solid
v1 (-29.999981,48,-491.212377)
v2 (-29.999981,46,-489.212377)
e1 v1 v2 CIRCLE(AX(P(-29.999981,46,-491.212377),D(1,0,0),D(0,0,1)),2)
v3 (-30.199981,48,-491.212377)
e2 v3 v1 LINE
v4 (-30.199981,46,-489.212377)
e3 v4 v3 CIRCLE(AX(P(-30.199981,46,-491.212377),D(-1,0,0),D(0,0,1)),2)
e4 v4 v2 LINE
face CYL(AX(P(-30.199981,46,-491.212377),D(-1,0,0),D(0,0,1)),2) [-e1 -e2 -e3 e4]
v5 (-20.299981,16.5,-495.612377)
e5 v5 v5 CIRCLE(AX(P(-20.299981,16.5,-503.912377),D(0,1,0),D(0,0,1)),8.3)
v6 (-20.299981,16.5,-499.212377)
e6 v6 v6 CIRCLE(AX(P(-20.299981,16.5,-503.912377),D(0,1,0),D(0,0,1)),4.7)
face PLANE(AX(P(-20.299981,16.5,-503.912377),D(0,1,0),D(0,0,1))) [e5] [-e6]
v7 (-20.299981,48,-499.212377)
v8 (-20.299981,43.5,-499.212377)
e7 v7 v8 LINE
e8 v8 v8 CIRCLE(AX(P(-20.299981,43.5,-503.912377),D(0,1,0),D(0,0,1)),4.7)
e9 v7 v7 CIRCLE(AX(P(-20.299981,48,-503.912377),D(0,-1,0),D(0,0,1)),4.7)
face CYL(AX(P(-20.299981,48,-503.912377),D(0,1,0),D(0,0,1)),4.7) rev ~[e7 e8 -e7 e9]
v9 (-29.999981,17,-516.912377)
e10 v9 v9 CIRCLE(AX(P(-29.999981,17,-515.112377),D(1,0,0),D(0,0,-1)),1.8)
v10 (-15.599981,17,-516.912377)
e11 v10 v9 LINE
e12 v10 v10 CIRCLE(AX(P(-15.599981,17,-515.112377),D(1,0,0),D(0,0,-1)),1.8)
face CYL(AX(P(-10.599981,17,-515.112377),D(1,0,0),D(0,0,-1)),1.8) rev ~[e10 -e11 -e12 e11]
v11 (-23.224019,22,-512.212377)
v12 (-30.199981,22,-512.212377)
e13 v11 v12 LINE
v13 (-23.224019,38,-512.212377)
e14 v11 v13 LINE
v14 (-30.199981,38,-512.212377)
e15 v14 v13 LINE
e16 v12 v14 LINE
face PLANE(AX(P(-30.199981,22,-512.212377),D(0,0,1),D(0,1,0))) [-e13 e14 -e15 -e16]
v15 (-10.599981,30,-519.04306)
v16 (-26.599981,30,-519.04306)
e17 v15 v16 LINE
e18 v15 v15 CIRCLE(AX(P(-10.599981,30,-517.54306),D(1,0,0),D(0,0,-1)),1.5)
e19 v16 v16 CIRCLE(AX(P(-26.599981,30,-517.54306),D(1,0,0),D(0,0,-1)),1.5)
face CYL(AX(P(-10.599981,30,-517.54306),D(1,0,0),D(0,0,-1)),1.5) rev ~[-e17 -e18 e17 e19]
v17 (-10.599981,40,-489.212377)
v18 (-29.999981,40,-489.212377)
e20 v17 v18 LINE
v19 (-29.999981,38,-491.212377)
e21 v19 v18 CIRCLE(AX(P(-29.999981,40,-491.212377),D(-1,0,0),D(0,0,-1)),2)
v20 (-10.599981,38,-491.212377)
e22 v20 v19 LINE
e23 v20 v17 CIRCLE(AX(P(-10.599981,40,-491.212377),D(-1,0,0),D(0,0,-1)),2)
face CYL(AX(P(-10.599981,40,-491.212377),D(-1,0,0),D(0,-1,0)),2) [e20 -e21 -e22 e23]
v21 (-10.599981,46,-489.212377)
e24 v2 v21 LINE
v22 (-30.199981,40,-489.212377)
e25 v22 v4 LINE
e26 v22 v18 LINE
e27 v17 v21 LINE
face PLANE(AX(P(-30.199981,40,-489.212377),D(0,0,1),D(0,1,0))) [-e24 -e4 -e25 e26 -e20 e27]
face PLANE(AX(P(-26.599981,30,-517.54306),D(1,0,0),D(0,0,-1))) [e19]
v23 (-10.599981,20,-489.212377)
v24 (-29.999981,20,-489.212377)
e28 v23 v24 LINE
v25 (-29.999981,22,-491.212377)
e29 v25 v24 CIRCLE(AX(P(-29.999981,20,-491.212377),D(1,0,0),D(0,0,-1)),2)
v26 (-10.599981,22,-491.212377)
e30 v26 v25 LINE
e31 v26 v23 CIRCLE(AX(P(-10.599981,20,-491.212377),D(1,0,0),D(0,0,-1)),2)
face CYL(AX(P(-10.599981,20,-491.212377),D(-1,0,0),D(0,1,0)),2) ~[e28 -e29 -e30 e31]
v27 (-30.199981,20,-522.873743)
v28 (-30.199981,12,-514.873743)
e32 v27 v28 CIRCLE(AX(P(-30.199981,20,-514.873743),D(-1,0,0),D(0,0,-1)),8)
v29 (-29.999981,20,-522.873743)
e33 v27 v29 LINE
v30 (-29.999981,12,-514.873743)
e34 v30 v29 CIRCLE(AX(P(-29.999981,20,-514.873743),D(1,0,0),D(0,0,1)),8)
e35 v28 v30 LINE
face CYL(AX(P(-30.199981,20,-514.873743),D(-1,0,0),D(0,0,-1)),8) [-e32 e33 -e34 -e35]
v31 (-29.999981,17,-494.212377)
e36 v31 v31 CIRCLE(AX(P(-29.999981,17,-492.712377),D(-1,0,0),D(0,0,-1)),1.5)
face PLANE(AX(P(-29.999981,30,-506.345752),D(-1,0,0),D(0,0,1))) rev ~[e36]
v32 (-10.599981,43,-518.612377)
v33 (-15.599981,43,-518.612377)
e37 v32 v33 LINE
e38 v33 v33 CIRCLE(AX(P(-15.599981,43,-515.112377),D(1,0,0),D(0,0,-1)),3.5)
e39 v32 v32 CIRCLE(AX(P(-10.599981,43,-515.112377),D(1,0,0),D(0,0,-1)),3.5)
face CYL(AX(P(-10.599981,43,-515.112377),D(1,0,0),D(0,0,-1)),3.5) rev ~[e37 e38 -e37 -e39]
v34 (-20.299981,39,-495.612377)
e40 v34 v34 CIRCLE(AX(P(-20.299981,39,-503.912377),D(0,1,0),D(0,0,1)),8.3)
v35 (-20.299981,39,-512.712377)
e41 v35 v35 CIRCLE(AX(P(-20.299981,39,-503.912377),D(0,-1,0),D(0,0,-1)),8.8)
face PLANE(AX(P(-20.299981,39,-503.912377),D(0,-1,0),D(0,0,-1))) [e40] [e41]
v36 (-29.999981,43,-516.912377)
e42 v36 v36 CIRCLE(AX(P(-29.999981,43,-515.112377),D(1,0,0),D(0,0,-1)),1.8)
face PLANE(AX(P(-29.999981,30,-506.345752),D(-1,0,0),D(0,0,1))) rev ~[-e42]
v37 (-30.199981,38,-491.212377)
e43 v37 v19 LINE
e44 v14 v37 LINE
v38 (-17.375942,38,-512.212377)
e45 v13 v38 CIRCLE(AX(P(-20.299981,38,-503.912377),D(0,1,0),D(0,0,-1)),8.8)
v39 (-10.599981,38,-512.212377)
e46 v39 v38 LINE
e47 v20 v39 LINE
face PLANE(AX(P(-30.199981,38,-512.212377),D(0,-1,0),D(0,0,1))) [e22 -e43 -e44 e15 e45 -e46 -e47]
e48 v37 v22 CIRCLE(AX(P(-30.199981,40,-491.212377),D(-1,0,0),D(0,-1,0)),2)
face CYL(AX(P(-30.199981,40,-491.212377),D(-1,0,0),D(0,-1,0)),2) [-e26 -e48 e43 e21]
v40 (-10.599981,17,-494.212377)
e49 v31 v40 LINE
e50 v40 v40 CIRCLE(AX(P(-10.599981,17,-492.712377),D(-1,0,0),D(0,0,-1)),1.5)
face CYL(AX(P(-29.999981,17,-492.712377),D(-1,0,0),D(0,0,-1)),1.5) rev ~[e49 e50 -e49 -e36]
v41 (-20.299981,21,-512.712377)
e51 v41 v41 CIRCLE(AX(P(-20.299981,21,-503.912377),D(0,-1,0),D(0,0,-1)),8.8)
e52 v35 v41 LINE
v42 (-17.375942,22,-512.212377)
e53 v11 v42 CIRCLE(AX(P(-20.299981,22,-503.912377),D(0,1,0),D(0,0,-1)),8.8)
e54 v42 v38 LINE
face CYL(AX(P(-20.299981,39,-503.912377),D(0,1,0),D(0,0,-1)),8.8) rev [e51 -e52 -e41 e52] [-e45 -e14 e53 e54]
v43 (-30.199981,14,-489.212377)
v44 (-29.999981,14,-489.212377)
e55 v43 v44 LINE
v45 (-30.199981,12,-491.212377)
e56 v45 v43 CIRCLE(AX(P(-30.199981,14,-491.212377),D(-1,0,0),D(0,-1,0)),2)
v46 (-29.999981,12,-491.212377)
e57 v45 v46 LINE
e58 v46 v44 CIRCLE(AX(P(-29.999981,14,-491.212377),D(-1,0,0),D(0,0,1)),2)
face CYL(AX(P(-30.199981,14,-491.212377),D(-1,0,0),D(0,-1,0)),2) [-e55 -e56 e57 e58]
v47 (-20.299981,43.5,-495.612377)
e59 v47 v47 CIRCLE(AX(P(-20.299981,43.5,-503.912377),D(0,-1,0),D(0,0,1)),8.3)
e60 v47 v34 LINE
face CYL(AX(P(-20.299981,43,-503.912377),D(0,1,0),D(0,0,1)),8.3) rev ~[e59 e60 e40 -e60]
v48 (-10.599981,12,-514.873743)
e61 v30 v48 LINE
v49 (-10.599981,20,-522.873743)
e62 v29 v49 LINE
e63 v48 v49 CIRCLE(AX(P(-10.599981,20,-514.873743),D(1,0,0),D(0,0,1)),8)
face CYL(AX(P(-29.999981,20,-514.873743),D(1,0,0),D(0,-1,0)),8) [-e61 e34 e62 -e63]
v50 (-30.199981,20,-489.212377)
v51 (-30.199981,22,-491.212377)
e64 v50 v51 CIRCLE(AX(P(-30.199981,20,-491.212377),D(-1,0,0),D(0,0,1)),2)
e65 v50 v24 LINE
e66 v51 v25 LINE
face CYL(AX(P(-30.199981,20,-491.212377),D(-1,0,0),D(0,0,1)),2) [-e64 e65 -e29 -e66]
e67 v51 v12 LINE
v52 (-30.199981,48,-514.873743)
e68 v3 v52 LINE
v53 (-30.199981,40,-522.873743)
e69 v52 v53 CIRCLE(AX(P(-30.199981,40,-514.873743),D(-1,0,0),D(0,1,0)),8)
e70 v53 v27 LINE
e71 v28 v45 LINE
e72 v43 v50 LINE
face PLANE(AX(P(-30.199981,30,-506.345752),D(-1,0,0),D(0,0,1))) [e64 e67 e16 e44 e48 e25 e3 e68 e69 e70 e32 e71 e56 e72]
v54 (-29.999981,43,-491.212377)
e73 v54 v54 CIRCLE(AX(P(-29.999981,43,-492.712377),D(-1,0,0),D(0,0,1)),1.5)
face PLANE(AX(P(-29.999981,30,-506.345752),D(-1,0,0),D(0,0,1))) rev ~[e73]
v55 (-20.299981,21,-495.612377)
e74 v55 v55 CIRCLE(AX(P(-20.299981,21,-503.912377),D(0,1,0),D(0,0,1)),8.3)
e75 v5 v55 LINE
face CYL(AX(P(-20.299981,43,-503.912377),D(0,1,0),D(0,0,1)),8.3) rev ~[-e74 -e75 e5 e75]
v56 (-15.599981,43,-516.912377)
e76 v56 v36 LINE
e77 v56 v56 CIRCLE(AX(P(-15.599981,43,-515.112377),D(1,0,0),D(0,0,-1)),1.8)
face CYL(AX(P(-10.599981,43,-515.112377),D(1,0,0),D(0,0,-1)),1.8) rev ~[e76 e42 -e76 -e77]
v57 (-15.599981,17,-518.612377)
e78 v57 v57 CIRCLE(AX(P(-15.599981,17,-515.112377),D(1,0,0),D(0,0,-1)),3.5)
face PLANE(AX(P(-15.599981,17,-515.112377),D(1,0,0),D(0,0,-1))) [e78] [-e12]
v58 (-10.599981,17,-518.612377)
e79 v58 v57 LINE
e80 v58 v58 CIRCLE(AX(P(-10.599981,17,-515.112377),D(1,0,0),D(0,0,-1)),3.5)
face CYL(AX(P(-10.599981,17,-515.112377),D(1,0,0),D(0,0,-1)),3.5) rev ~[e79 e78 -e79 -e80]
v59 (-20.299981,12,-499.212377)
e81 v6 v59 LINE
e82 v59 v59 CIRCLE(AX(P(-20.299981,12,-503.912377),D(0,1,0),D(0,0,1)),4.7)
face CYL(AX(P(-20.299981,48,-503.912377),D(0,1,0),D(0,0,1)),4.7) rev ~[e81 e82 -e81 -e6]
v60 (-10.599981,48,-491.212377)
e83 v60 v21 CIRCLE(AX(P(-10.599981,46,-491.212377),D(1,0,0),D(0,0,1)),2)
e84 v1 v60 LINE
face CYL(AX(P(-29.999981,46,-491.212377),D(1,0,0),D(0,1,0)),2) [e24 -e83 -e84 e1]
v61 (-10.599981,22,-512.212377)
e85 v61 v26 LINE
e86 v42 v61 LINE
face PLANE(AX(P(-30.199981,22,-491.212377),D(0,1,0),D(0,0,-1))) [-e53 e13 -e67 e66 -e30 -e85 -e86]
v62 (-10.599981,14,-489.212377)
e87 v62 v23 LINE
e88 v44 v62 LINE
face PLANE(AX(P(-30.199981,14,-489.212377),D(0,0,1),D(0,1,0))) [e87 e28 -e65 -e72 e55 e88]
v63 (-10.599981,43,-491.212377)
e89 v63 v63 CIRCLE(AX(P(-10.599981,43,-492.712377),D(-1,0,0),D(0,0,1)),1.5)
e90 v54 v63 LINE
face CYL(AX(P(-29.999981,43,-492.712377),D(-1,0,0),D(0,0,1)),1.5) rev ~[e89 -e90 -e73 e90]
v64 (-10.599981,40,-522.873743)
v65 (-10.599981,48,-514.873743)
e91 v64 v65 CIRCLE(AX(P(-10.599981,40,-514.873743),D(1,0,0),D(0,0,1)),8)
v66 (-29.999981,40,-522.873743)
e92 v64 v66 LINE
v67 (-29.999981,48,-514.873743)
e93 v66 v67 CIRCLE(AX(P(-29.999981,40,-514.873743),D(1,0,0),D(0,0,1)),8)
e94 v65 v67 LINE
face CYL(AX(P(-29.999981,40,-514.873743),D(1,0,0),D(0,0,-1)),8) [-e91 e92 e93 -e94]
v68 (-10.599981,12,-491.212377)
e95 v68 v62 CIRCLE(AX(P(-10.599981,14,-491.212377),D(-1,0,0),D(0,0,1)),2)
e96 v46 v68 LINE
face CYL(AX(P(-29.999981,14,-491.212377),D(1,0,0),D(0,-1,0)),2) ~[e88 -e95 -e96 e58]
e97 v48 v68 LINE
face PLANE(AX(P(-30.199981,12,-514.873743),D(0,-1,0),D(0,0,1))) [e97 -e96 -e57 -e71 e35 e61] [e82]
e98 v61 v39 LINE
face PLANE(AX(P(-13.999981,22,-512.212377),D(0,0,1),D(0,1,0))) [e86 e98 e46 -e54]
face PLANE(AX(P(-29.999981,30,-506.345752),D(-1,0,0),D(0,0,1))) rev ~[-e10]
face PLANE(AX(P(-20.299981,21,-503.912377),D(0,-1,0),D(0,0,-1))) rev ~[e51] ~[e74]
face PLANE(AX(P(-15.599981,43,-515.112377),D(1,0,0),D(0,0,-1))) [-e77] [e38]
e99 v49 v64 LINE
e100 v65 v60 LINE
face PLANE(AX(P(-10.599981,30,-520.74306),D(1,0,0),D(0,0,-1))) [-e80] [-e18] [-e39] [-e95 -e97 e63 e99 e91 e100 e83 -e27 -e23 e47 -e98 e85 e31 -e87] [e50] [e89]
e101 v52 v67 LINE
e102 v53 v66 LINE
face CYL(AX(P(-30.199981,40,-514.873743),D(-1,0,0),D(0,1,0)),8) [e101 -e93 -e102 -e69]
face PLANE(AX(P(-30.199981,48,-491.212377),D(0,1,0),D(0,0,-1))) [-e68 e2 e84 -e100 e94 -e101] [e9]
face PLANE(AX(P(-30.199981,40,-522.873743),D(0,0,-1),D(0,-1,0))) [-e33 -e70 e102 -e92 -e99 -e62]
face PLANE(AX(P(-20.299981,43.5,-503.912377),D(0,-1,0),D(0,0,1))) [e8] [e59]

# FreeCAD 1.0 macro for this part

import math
import FreeCAD as App
import Part
import Sketcher
from FreeCAD import Vector


def edges_at(feature, points):
    """Names of the edges that pass closest to the given points."""
    edges = feature.Shape.Edges
    near = lambda p: min(range(len(edges)), key=lambda i: edges[i].distToShape(Part.Vertex(*p))[0])
    return sorted({f"Edge{near(p) + 1}" for p in points})

doc = App.newDocument("Part")
body = doc.addObject("PartDesign::Body", "Body")

# Sketch on XZ plane
sketch1 = doc.addObject("Sketcher::SketchObject", "Sketch")
body.addObject(sketch1)
sketch1.AttachmentSupport = (doc.XZ_Plane, [""])
sketch1.MapMode = "FlatFace"
sketch1.addGeometry([
    Part.LineSegment(Vector(-25, -522.9, 0), Vector(-30, -522.9, 0)),  # 0
    Part.LineSegment(Vector(-30, -522.9, 0), Vector(-30, -494.2, 0)),  # 1
    Part.LineSegment(Vector(-30, -494.2, 0), Vector(-20.3, -494.2, 0)),  # 2
    Part.ArcOfCircle(Part.Circle(Vector(-20.3, -503.9, 0), Vector(0, 0, 1), 9.7), math.radians(-90), math.radians(90)),  # 3
    Part.LineSegment(Vector(-20.3, -513.6, 0), Vector(-25, -513.6, 0)),  # 4
    Part.LineSegment(Vector(-25, -513.6, 0), Vector(-25, -522.9, 0)),  # 5
    Part.Circle(Vector(-20.3, -503.9, 0), Vector(0, 0, 1), 3),  # 6
], False)
sketch1.addConstraint([
    Sketcher.Constraint("Coincident", 0, 2, 1, 1),
    Sketcher.Constraint("Coincident", 1, 2, 2, 1),
    Sketcher.Constraint("Tangent", 2, 2, 3, 2),
    Sketcher.Constraint("Tangent", 3, 1, 4, 1),
    Sketcher.Constraint("Coincident", 4, 2, 5, 1),
    Sketcher.Constraint("Coincident", 5, 2, 0, 1),
    Sketcher.Constraint("Horizontal", 0),
    Sketcher.Constraint("Vertical", 1),
    Sketcher.Constraint("Horizontal", 2),
    Sketcher.Constraint("Horizontal", 4),
    Sketcher.Constraint("Vertical", 5),
    Sketcher.Constraint("Coincident", 6, 3, 3, 3),
    Sketcher.Constraint("Diameter", 6, 6.0),
    Sketcher.Constraint("Radius", 3, 9.7),
    Sketcher.Constraint("DistanceX", 0, 2, 0, 1, 5.0),
    Sketcher.Constraint("DistanceX", 2, 1, 2, 2, 9.7),
    Sketcher.Constraint("DistanceY", 1, 1, 1, 2, 28.661365),
    Sketcher.Constraint("DistanceX", 3, 3, -1, 1, 20.299981),
    Sketcher.Constraint("DistanceY", 3, 3, -1, 1, 503.912377),
])
pad1 = doc.addObject("PartDesign::Pad", "Pad")
body.addObject(pad1)
pad1.Profile = sketch1
pad1.Length = 60
pad1.Reversed = True

# Sketch on XZ plane
sketch2 = doc.addObject("Sketcher::SketchObject", "Sketch001")
body.addObject(sketch2)
sketch2.AttachmentSupport = (doc.XZ_Plane, [""])
sketch2.MapMode = "FlatFace"
sketch2.AttachmentOffset = App.Placement(Vector(0, 0, -43), App.Rotation())
sketch2.addGeometry(Part.Circle(Vector(-20, -504, 0), Vector(0, 0, 1), 8), False)
sketch2.addConstraint([
    Sketcher.Constraint("Diameter", 0, 16.6),
    Sketcher.Constraint("DistanceX", 0, 3, -1, 1, 20.299981),
    Sketcher.Constraint("DistanceY", 0, 3, -1, 1, 503.912377),
])
pocket1 = doc.addObject("PartDesign::Pocket", "Pocket")
body.addObject(pocket1)
pocket1.Profile = sketch2
pocket1.Length = 26
pocket1.Reversed = True

# Sketch on XZ plane
sketch3 = doc.addObject("Sketcher::SketchObject", "Sketch002")
body.addObject(sketch3)
sketch3.AttachmentSupport = (doc.XZ_Plane, [""])
sketch3.MapMode = "FlatFace"
sketch3.AttachmentOffset = App.Placement(Vector(0, 0, -38), App.Rotation())
sketch3.addGeometry([
    Part.LineSegment(Vector(-20, -512, 0), Vector(-30, -512, 0)),
    Part.LineSegment(Vector(-30, -512, 0), Vector(-30, -496, 0)),
    Part.LineSegment(Vector(-30, -496, 0), Vector(-20, -496, 0)),
    Part.ArcOfCircle(Part.Circle(Vector(-20, -504, 0), Vector(0, 0, 1), 8), math.radians(90), math.radians(270)),
], False)
sketch3.addConstraint([
    Sketcher.Constraint("Coincident", 0, 2, 1, 1),
    Sketcher.Constraint("Coincident", 1, 2, 2, 1),
    Sketcher.Constraint("Tangent", 2, 2, 3, 1),
    Sketcher.Constraint("Tangent", 3, 2, 0, 1),
    Sketcher.Constraint("Horizontal", 0),
    Sketcher.Constraint("Vertical", 1),
    Sketcher.Constraint("Horizontal", 2),
    Sketcher.Constraint("Radius", 3, 8.3),
    Sketcher.Constraint("DistanceX", 0, 2, 0, 1, 9.7),
    Sketcher.Constraint("DistanceX", 3, 3, -1, 1, 20.299981),
    Sketcher.Constraint("DistanceY", 3, 3, -1, 1, 503.912377),
])
pocket2 = doc.addObject("PartDesign::Pocket", "Pocket001")
body.addObject(pocket2)
pocket2.Profile = sketch3
pocket2.Length = 16
pocket2.Reversed = True

# Sketch on XZ plane
sketch4 = doc.addObject("Sketcher::SketchObject", "Sketch003")
body.addObject(sketch4)
sketch4.AttachmentSupport = (doc.XZ_Plane, [""])
sketch4.MapMode = "FlatFace"
sketch4.AttachmentOffset = App.Placement(Vector(0, 0, -48), App.Rotation())
sketch4.addGeometry([
    Part.LineSegment(Vector(-25, -513.6, 0), Vector(-25, -494.2, 0)),
    Part.LineSegment(Vector(-25, -494.2, 0), Vector(-20.3, -494.2, 0)),
    Part.ArcOfCircle(Part.Circle(Vector(-20.3, -503.9, 0), Vector(0, 0, 1), 9.7), math.radians(-90), math.radians(90)),
    Part.LineSegment(Vector(-20.3, -513.6, 0), Vector(-25, -513.6, 0)),
], False)
sketch4.addConstraint([
    Sketcher.Constraint("Coincident", 0, 2, 1, 1),
    Sketcher.Constraint("Tangent", 1, 2, 2, 2),
    Sketcher.Constraint("Tangent", 2, 1, 3, 1),
    Sketcher.Constraint("Coincident", 3, 2, 0, 1),
    Sketcher.Constraint("Vertical", 0),
    Sketcher.Constraint("Horizontal", 1),
    Sketcher.Constraint("Horizontal", 3),
    Sketcher.Constraint("Radius", 2, 9.7),
    Sketcher.Constraint("DistanceX", 1, 1, 1, 2, 4.7),
    Sketcher.Constraint("DistanceX", 2, 3, -1, 1, 20.299981),
    Sketcher.Constraint("DistanceY", 2, 3, -1, 1, 503.912377),
])
pocket3 = doc.addObject("PartDesign::Pocket", "Pocket002")
body.addObject(pocket3)
pocket3.Profile = sketch4
pocket3.Length = 12

# Sketch on XZ plane
sketch5 = doc.addObject("Sketcher::SketchObject", "Sketch004")
body.addObject(sketch5)
sketch5.AttachmentSupport = (doc.XZ_Plane, [""])
sketch5.MapMode = "FlatFace"
sketch5.addGeometry([
    Part.LineSegment(Vector(-25, -513.6, 0), Vector(-20.3, -513.6, 0)),
    Part.ArcOfCircle(Part.Circle(Vector(-20.3, -503.9, 0), Vector(0, 0, 1), 9.7), math.radians(-90), math.radians(90)),
    Part.LineSegment(Vector(-20.3, -494.2, 0), Vector(-25, -494.2, 0)),
    Part.LineSegment(Vector(-25, -494.2, 0), Vector(-25, -513.6, 0)),
], False)
sketch5.addConstraint([
    Sketcher.Constraint("Tangent", 0, 2, 1, 1),
    Sketcher.Constraint("Tangent", 1, 2, 2, 1),
    Sketcher.Constraint("Coincident", 2, 2, 3, 1),
    Sketcher.Constraint("Coincident", 3, 2, 0, 1),
    Sketcher.Constraint("Horizontal", 0),
    Sketcher.Constraint("Horizontal", 2),
    Sketcher.Constraint("Vertical", 3),
    Sketcher.Constraint("Radius", 1, 9.7),
    Sketcher.Constraint("DistanceX", 0, 1, 0, 2, 4.7),
    Sketcher.Constraint("DistanceX", 1, 3, -1, 1, 20.299981),
    Sketcher.Constraint("DistanceY", 1, 3, -1, 1, 503.912377),
])
pocket4 = doc.addObject("PartDesign::Pocket", "Pocket003")
body.addObject(pocket4)
pocket4.Profile = sketch5
pocket4.Length = 12

# Sketch on XZ plane
sketch6 = doc.addObject("Sketcher::SketchObject", "Sketch005")
body.addObject(sketch6)
sketch6.AttachmentSupport = (doc.XZ_Plane, [""])
sketch6.MapMode = "FlatFace"
sketch6.AttachmentOffset = App.Placement(Vector(0, 0, -22), App.Rotation())
sketch6.addGeometry([
    Part.LineSegment(Vector(-20.3, -513.6, 0), Vector(-25, -513.6, 0)),
    Part.LineSegment(Vector(-25, -513.6, 0), Vector(-25, -494.2, 0)),
    Part.LineSegment(Vector(-25, -494.2, 0), Vector(-20.3, -494.2, 0)),
    Part.ArcOfCircle(Part.Circle(Vector(-20.3, -503.9, 0), Vector(0, 0, 1), 9.7), math.radians(-90), math.radians(90)),
], False)
sketch6.addConstraint([
    Sketcher.Constraint("Coincident", 0, 2, 1, 1),
    Sketcher.Constraint("Coincident", 1, 2, 2, 1),
    Sketcher.Constraint("Tangent", 2, 2, 3, 2),
    Sketcher.Constraint("Tangent", 3, 1, 0, 1),
    Sketcher.Constraint("Horizontal", 0),
    Sketcher.Constraint("Vertical", 1),
    Sketcher.Constraint("Horizontal", 2),
    Sketcher.Constraint("Radius", 3, 9.7),
    Sketcher.Constraint("DistanceX", 0, 2, 0, 1, 4.7),
    Sketcher.Constraint("DistanceX", 3, 3, -1, 1, 20.299981),
    Sketcher.Constraint("DistanceY", 3, 3, -1, 1, 503.912377),
])
pocket5 = doc.addObject("PartDesign::Pocket", "Pocket004")
body.addObject(pocket5)
pocket5.Profile = sketch6
pocket5.Length = 16

# Sketch on YZ plane
sketch7 = doc.addObject("Sketcher::SketchObject", "Sketch006")
body.addObject(sketch7)
sketch7.AttachmentSupport = (doc.YZ_Plane, [""])
sketch7.MapMode = "FlatFace"
sketch7.AttachmentOffset = App.Placement(Vector(0, 0, -24.999981), App.Rotation())
sketch7.addGeometry([
    Part.LineSegment(Vector(38, -494.2, 0), Vector(22, -494.2, 0)),
    Part.LineSegment(Vector(22, -494.2, 0), Vector(22, -495.6, 0)),
    Part.LineSegment(Vector(22, -495.6, 0), Vector(38, -495.6, 0)),
    Part.LineSegment(Vector(38, -495.6, 0), Vector(38, -494.2, 0)),
], False)
sketch7.addConstraint([
    Sketcher.Constraint("Coincident", 0, 2, 1, 1),
    Sketcher.Constraint("Coincident", 1, 2, 2, 1),
    Sketcher.Constraint("Coincident", 2, 2, 3, 1),
    Sketcher.Constraint("Coincident", 3, 2, 0, 1),
    Sketcher.Constraint("Horizontal", 0),
    Sketcher.Constraint("Vertical", 1),
    Sketcher.Constraint("Horizontal", 2),
    Sketcher.Constraint("Vertical", 3),
    Sketcher.Constraint("DistanceX", 0, 2, 0, 1, 16.0),
    Sketcher.Constraint("DistanceY", 1, 2, 1, 1, 1.4),
    Sketcher.Constraint("DistanceX", -1, 1, 0, 2, 22.0),
    Sketcher.Constraint("DistanceY", 0, 2, -1, 1, 494.212377),
])
pocket6 = doc.addObject("PartDesign::Pocket", "Pocket005")
body.addObject(pocket6)
pocket6.Profile = sketch7
pocket6.Type = "ThroughAll"

# Sketch on YZ plane
sketch8 = doc.addObject("Sketcher::SketchObject", "Sketch007")
body.addObject(sketch8)
sketch8.AttachmentSupport = (doc.YZ_Plane, [""])
sketch8.MapMode = "FlatFace"
sketch8.AttachmentOffset = App.Placement(Vector(0, 0, -29.999981), App.Rotation())
sketch8.addGeometry([
    Part.LineSegment(Vector(48, -494, 0), Vector(38, -494, 0)),  # 0
    Part.LineSegment(Vector(38, -494, 0), Vector(38, -489, 0)),  # 1
    Part.LineSegment(Vector(38, -489, 0), Vector(48, -489, 0)),  # 2
    Part.LineSegment(Vector(48, -489, 0), Vector(48, -494, 0)),  # 3
    Part.LineSegment(Vector(48, -519, 0), Vector(38, -519, 0)),  # 4
    Part.LineSegment(Vector(38, -519, 0), Vector(38, -514, 0)),  # 5
    Part.LineSegment(Vector(38, -514, 0), Vector(48, -514, 0)),  # 6
    Part.LineSegment(Vector(48, -514, 0), Vector(48, -519, 0)),  # 7
    Part.LineSegment(Vector(22, -519, 0), Vector(12, -519, 0)),  # 8
    Part.LineSegment(Vector(12, -519, 0), Vector(12, -514, 0)),  # 9
    Part.LineSegment(Vector(12, -514, 0), Vector(22, -514, 0)),  # 10
    Part.LineSegment(Vector(22, -514, 0), Vector(22, -519, 0)),  # 11
    Part.LineSegment(Vector(22, -494, 0), Vector(12, -494, 0)),  # 12
    Part.LineSegment(Vector(12, -494, 0), Vector(12, -489, 0)),  # 13
    Part.LineSegment(Vector(12, -489, 0), Vector(22, -489, 0)),  # 14
    Part.LineSegment(Vector(22, -489, 0), Vector(22, -494, 0)),  # 15
], False)
sketch8.addConstraint([
    Sketcher.Constraint("Coincident", 0, 2, 1, 1),
    Sketcher.Constraint("Coincident", 1, 2, 2, 1),
    Sketcher.Constraint("Coincident", 2, 2, 3, 1),
    Sketcher.Constraint("Coincident", 3, 2, 0, 1),
    Sketcher.Constraint("Coincident", 4, 2, 5, 1),
    Sketcher.Constraint("Coincident", 5, 2, 6, 1),
    Sketcher.Constraint("Coincident", 6, 2, 7, 1),
    Sketcher.Constraint("Coincident", 7, 2, 4, 1),
    Sketcher.Constraint("Coincident", 8, 2, 9, 1),
    Sketcher.Constraint("Coincident", 9, 2, 10, 1),
    Sketcher.Constraint("Coincident", 10, 2, 11, 1),
    Sketcher.Constraint("Coincident", 11, 2, 8, 1),
    Sketcher.Constraint("Coincident", 12, 2, 13, 1),
    Sketcher.Constraint("Coincident", 13, 2, 14, 1),
    Sketcher.Constraint("Coincident", 14, 2, 15, 1),
    Sketcher.Constraint("Coincident", 15, 2, 12, 1),
    Sketcher.Constraint("Horizontal", 0),
    Sketcher.Constraint("Vertical", 1),
    Sketcher.Constraint("Horizontal", 2),
    Sketcher.Constraint("Vertical", 3),
    Sketcher.Constraint("Horizontal", 4),
    Sketcher.Constraint("Vertical", 5),
    Sketcher.Constraint("Horizontal", 6),
    Sketcher.Constraint("Vertical", 7),
    Sketcher.Constraint("Horizontal", 8),
    Sketcher.Constraint("Vertical", 9),
    Sketcher.Constraint("Horizontal", 10),
    Sketcher.Constraint("Vertical", 11),
    Sketcher.Constraint("Horizontal", 12),
    Sketcher.Constraint("Vertical", 13),
    Sketcher.Constraint("Horizontal", 14),
    Sketcher.Constraint("Vertical", 15),
    Sketcher.Constraint("Horizontal", 7, 2, 8, 2),
    Sketcher.Constraint("Horizontal", 6, 2, 9, 2),
    Sketcher.Constraint("Horizontal", 3, 2, 12, 2),
    Sketcher.Constraint("Horizontal", 2, 2, 13, 2),
    Sketcher.Constraint("Vertical", 1, 2, 4, 2),
    Sketcher.Constraint("Vertical", 3, 2, 6, 2),
    Sketcher.Constraint("Vertical", 9, 2, 12, 2),
    Sketcher.Constraint("Vertical", 11, 2, 14, 2),
    Sketcher.Constraint("Equal", 6, 8),
    Sketcher.Constraint("Equal", 3, 5),
    Sketcher.Constraint("DistanceX", 0, 2, 0, 1, 10.0),
    Sketcher.Constraint("DistanceY", 1, 1, 1, 2, 5.0),
    Sketcher.Constraint("DistanceX", -1, 1, 0, 2, 38.0),
    Sketcher.Constraint("DistanceX", -1, 1, 8, 2, 12.0),
    Sketcher.Constraint("DistanceY", 4, 2, 0, 2, 24.4),
    Sketcher.Constraint("DistanceY", 0, 2, -1, 1, 494.212377),
])
pad2 = doc.addObject("PartDesign::Pad", "Pad001")
body.addObject(pad2)
pad2.Profile = sketch8
pad2.Length = 16

# Sketch on XZ plane
sketch9 = doc.addObject("Sketcher::SketchObject", "Sketch008")
body.addObject(sketch9)
sketch9.AttachmentSupport = (doc.XZ_Plane, [""])
sketch9.MapMode = "FlatFace"
sketch9.AttachmentOffset = App.Placement(Vector(0, 0, -12), App.Rotation())
sketch9.addGeometry([
    Part.LineSegment(Vector(-20.3, -513.6, 0), Vector(-14, -513.6, 0)),  # 0
    Part.LineSegment(Vector(-14, -513.6, 0), Vector(-14, -511.3, 0)),  # 1
    Part.ArcOfCircle(Part.Circle(Vector(-20.3, -503.9, 0), Vector(0, 0, 1), 9.7), math.radians(-90), math.radians(-49)),  # 2
    Part.LineSegment(Vector(-14, -494.2, 0), Vector(-20.3, -494.2, 0)),  # 3
    Part.ArcOfCircle(Part.Circle(Vector(-20.3, -503.9, 0), Vector(0, 0, 1), 9.7), math.radians(49), math.radians(90)),  # 4
    Part.LineSegment(Vector(-14, -496.5, 0), Vector(-14, -494.2, 0)),  # 5
], False)
sketch9.addConstraint([
    Sketcher.Constraint("Coincident", 0, 2, 1, 1),
    Sketcher.Constraint("Coincident", 1, 2, 2, 2),
    Sketcher.Constraint("Tangent", 2, 1, 0, 1),
    Sketcher.Constraint("Tangent", 3, 2, 4, 2),
    Sketcher.Constraint("Coincident", 4, 1, 5, 1),
    Sketcher.Constraint("Coincident", 5, 2, 3, 1),
    Sketcher.Constraint("Horizontal", 0),
    Sketcher.Constraint("Vertical", 1),
    Sketcher.Constraint("Horizontal", 3),
    Sketcher.Constraint("Vertical", 5),
    Sketcher.Constraint("Coincident", 4, 3, 2, 3),
    Sketcher.Constraint("Equal", 2, 4),
    Sketcher.Constraint("Vertical", 1, 2, 4, 1),
    Sketcher.Constraint("Radius", 2, 9.7),
    Sketcher.Constraint("DistanceX", 0, 1, 0, 2, 6.3),
    Sketcher.Constraint("DistanceX", 2, 3, -1, 1, 20.299981),
    Sketcher.Constraint("DistanceY", 4, 1, -1, 1, 496.536742),
])
pad3 = doc.addObject("PartDesign::Pad", "Pad002")
body.addObject(pad3)
pad3.Profile = sketch9
pad3.Length = 10
pad3.Reversed = True

# Sketch on XZ plane
sketch10 = doc.addObject("Sketcher::SketchObject", "Sketch009")
body.addObject(sketch10)
sketch10.AttachmentSupport = (doc.XZ_Plane, [""])
sketch10.MapMode = "FlatFace"
sketch10.AttachmentOffset = App.Placement(Vector(0, 0, -38), App.Rotation())
sketch10.addGeometry([
    Part.LineSegment(Vector(-20.3, -513.6, 0), Vector(-14, -513.6, 0)),  # 0
    Part.LineSegment(Vector(-14, -513.6, 0), Vector(-14, -511.3, 0)),  # 1
    Part.ArcOfCircle(Part.Circle(Vector(-20.3, -503.9, 0), Vector(0, 0, 1), 9.7), math.radians(-90), math.radians(-49)),  # 2
    Part.LineSegment(Vector(-14, -496.5, 0), Vector(-14, -494.2, 0)),  # 3
    Part.LineSegment(Vector(-14, -494.2, 0), Vector(-20.3, -494.2, 0)),  # 4
    Part.ArcOfCircle(Part.Circle(Vector(-20.3, -503.9, 0), Vector(0, 0, 1), 9.7), math.radians(49), math.radians(90)),  # 5
], False)
sketch10.addConstraint([
    Sketcher.Constraint("Coincident", 0, 2, 1, 1),
    Sketcher.Constraint("Coincident", 1, 2, 2, 2),
    Sketcher.Constraint("Tangent", 2, 1, 0, 1),
    Sketcher.Constraint("Coincident", 3, 2, 4, 1),
    Sketcher.Constraint("Tangent", 4, 2, 5, 2),
    Sketcher.Constraint("Coincident", 5, 1, 3, 1),
    Sketcher.Constraint("Horizontal", 0),
    Sketcher.Constraint("Vertical", 1),
    Sketcher.Constraint("Vertical", 3),
    Sketcher.Constraint("Horizontal", 4),
    Sketcher.Constraint("Coincident", 5, 3, 2, 3),
    Sketcher.Constraint("Equal", 2, 5),
    Sketcher.Constraint("Vertical", 1, 2, 3, 2),
    Sketcher.Constraint("Radius", 2, 9.7),
    Sketcher.Constraint("DistanceX", 0, 1, 0, 2, 6.3),
    Sketcher.Constraint("DistanceX", 2, 3, -1, 1, 20.299981),
    Sketcher.Constraint("DistanceY", 5, 1, -1, 1, 496.536742),
])
pad4 = doc.addObject("PartDesign::Pad", "Pad003")
body.addObject(pad4)
pad4.Profile = sketch10
pad4.Length = 10
pad4.Reversed = True

# Sketch on YZ plane
sketch11 = doc.addObject("Sketcher::SketchObject", "Sketch010")
body.addObject(sketch11)
sketch11.AttachmentSupport = (doc.YZ_Plane, [""])
sketch11.MapMode = "FlatFace"
sketch11.AttachmentOffset = App.Placement(Vector(0, 0, -24.999981), App.Rotation())
sketch11.addGeometry([
    Part.LineSegment(Vector(38, -512, 0), Vector(22, -512, 0)),
    Part.LineSegment(Vector(22, -512, 0), Vector(22, -519, 0)),
    Part.LineSegment(Vector(22, -519, 0), Vector(38, -519, 0)),
    Part.LineSegment(Vector(38, -519, 0), Vector(38, -512, 0)),
], False)
sketch11.addConstraint([
    Sketcher.Constraint("Coincident", 0, 2, 1, 1),
    Sketcher.Constraint("Coincident", 1, 2, 2, 1),
    Sketcher.Constraint("Coincident", 2, 2, 3, 1),
    Sketcher.Constraint("Coincident", 3, 2, 0, 1),
    Sketcher.Constraint("Horizontal", 0),
    Sketcher.Constraint("Vertical", 1),
    Sketcher.Constraint("Horizontal", 2),
    Sketcher.Constraint("Vertical", 3),
    Sketcher.Constraint("DistanceX", 0, 2, 0, 1, 16.0),
    Sketcher.Constraint("DistanceY", 1, 2, 1, 1, 6.4),
    Sketcher.Constraint("DistanceX", -1, 1, 0, 2, 22.0),
    Sketcher.Constraint("DistanceY", 0, 2, -1, 1, 512.212377),
])
pad5 = doc.addObject("PartDesign::Pad", "Pad004")
body.addObject(pad5)
pad5.Profile = sketch11
pad5.Length = 11

# Sketch on XZ plane
sketch12 = doc.addObject("Sketcher::SketchObject", "Sketch011")
body.addObject(sketch12)
sketch12.AttachmentSupport = (doc.XZ_Plane, [""])
sketch12.MapMode = "FlatFace"
sketch12.AttachmentOffset = App.Placement(Vector(0, 0, -12), App.Rotation())
sketch12.addGeometry([
    Part.ArcOfCircle(Part.Circle(Vector(-20.3, -503.9, 0), Vector(0, 0, 1), 9.7), math.radians(0), math.radians(49)),  # 0
    Part.LineSegment(Vector(-10.6, -503.9, 0), Vector(-10.6, -489.2, 0)),  # 1
    Part.LineSegment(Vector(-10.6, -489.2, 0), Vector(-14, -489.2, 0)),  # 2
    Part.LineSegment(Vector(-14, -489.2, 0), Vector(-14, -496.5, 0)),  # 3
    Part.LineSegment(Vector(-14, -511.3, 0), Vector(-14, -518.6, 0)),  # 4
    Part.LineSegment(Vector(-14, -518.6, 0), Vector(-10.6, -518.6, 0)),  # 5
    Part.LineSegment(Vector(-10.6, -518.6, 0), Vector(-10.6, -503.9, 0)),  # 6
    Part.ArcOfCircle(Part.Circle(Vector(-20.3, -503.9, 0), Vector(0, 0, 1), 9.7), math.radians(-49), math.radians(0)),  # 7
], False)
sketch12.addConstraint([
    Sketcher.Constraint("Tangent", 0, 1, 1, 1),
    Sketcher.Constraint("Coincident", 1, 2, 2, 1),
    Sketcher.Constraint("Coincident", 2, 2, 3, 1),
    Sketcher.Constraint("Coincident", 3, 2, 0, 2),
    Sketcher.Constraint("Coincident", 4, 2, 5, 1),
    Sketcher.Constraint("Coincident", 5, 2, 6, 1),
    Sketcher.Constraint("Tangent", 6, 2, 7, 2),
    Sketcher.Constraint("Coincident", 7, 1, 4, 1),
    Sketcher.Constraint("Vertical", 1),
    Sketcher.Constraint("Horizontal", 2),
    Sketcher.Constraint("Vertical", 3),
    Sketcher.Constraint("Vertical", 4),
    Sketcher.Constraint("Horizontal", 5),
    Sketcher.Constraint("Vertical", 6),
    Sketcher.Constraint("Coincident", 7, 3, 0, 3),
    Sketcher.Constraint("Equal", 0, 7),
    Sketcher.Constraint("Vertical", 3, 2, 4, 2),
    Sketcher.Constraint("Equal", 3, 4),
    Sketcher.Constraint("Radius", 0, 9.7),
    Sketcher.Constraint("DistanceX", 2, 2, 2, 1, 3.4),
    Sketcher.Constraint("DistanceY", 1, 1, 1, 2, 14.7),
    Sketcher.Constraint("DistanceX", 0, 3, -1, 1, 20.299981),
    Sketcher.Constraint("DistanceY", 3, 2, -1, 1, 496.536742),
])
pad6 = doc.addObject("PartDesign::Pad", "Pad005")
body.addObject(pad6)
pad6.Profile = sketch12
pad6.Length = 10
pad6.Reversed = True

# Sketch on XZ plane
sketch13 = doc.addObject("Sketcher::SketchObject", "Sketch012")
body.addObject(sketch13)
sketch13.AttachmentSupport = (doc.XZ_Plane, [""])
sketch13.MapMode = "FlatFace"
sketch13.AttachmentOffset = App.Placement(Vector(0, 0, -38), App.Rotation())
sketch13.addGeometry([
    Part.ArcOfCircle(Part.Circle(Vector(-20.3, -503.9, 0), Vector(0, 0, 1), 9.7), math.radians(-49), math.radians(0)),  # 0
    Part.LineSegment(Vector(-10.6, -503.9, 0), Vector(-10.6, -518.6, 0)),  # 1
    Part.LineSegment(Vector(-10.6, -518.6, 0), Vector(-14, -518.6, 0)),  # 2
    Part.LineSegment(Vector(-14, -518.6, 0), Vector(-14, -511.3, 0)),  # 3
    Part.LineSegment(Vector(-14, -489.2, 0), Vector(-10.6, -489.2, 0)),  # 4
    Part.LineSegment(Vector(-10.6, -489.2, 0), Vector(-10.6, -503.9, 0)),  # 5
    Part.ArcOfCircle(Part.Circle(Vector(-20.3, -503.9, 0), Vector(0, 0, 1), 9.7), math.radians(0), math.radians(49)),  # 6
    Part.LineSegment(Vector(-14, -496.5, 0), Vector(-14, -489.2, 0)),  # 7
], False)
sketch13.addConstraint([
    Sketcher.Constraint("Tangent", 0, 2, 1, 1),
    Sketcher.Constraint("Coincident", 1, 2, 2, 1),
    Sketcher.Constraint("Coincident", 2, 2, 3, 1),
    Sketcher.Constraint("Coincident", 3, 2, 0, 1),
    Sketcher.Constraint("Coincident", 4, 2, 5, 1),
    Sketcher.Constraint("Tangent", 5, 2, 6, 1),
    Sketcher.Constraint("Coincident", 6, 2, 7, 1),
    Sketcher.Constraint("Coincident", 7, 2, 4, 1),
    Sketcher.Constraint("Vertical", 1),
    Sketcher.Constraint("Horizontal", 2),
    Sketcher.Constraint("Vertical", 3),
    Sketcher.Constraint("Horizontal", 4),
    Sketcher.Constraint("Vertical", 5),
    Sketcher.Constraint("Vertical", 7),
    Sketcher.Constraint("Coincident", 6, 3, 0, 3),
    Sketcher.Constraint("Equal", 0, 6),
    Sketcher.Constraint("Vertical", 3, 2, 6, 2),
    Sketcher.Constraint("Equal", 1, 5),
    Sketcher.Constraint("Radius", 0, 9.7),
    Sketcher.Constraint("DistanceX", 2, 2, 2, 1, 3.4),
    Sketcher.Constraint("DistanceY", 1, 2, 1, 1, 14.7),
    Sketcher.Constraint("DistanceX", 0, 3, -1, 1, 20.299981),
    Sketcher.Constraint("DistanceY", 6, 2, -1, 1, 496.536742),
])
pad7 = doc.addObject("PartDesign::Pad", "Pad006")
body.addObject(pad7)
pad7.Profile = sketch13
pad7.Length = 10
pad7.Reversed = True

# Sketch on YZ plane
sketch14 = doc.addObject("Sketcher::SketchObject", "Sketch013")
body.addObject(sketch14)
sketch14.AttachmentSupport = (doc.YZ_Plane, [""])
sketch14.MapMode = "FlatFace"
sketch14.AttachmentOffset = App.Placement(Vector(0, 0, -13.999981), App.Rotation())
sketch14.addGeometry([
    Part.LineSegment(Vector(38, -512, 0), Vector(22, -512, 0)),
    Part.LineSegment(Vector(22, -512, 0), Vector(22, -519, 0)),
    Part.LineSegment(Vector(22, -519, 0), Vector(38, -519, 0)),
    Part.LineSegment(Vector(38, -519, 0), Vector(38, -512, 0)),
], False)
sketch14.addConstraint([
    Sketcher.Constraint("Coincident", 0, 2, 1, 1),
    Sketcher.Constraint("Coincident", 1, 2, 2, 1),
    Sketcher.Constraint("Coincident", 2, 2, 3, 1),
    Sketcher.Constraint("Coincident", 3, 2, 0, 1),
    Sketcher.Constraint("Horizontal", 0),
    Sketcher.Constraint("Vertical", 1),
    Sketcher.Constraint("Horizontal", 2),
    Sketcher.Constraint("Vertical", 3),
    Sketcher.Constraint("DistanceX", 0, 2, 0, 1, 16.0),
    Sketcher.Constraint("DistanceY", 1, 2, 1, 1, 6.4),
    Sketcher.Constraint("DistanceX", -1, 1, 0, 2, 22.0),
    Sketcher.Constraint("DistanceY", 0, 2, -1, 1, 512.212377),
])
pad8 = doc.addObject("PartDesign::Pad", "Pad007")
body.addObject(pad8)
pad8.Profile = sketch14
pad8.Length = 3.4

# Sketch on YZ plane
sketch15 = doc.addObject("Sketcher::SketchObject", "Sketch014")
body.addObject(sketch15)
sketch15.AttachmentSupport = (doc.YZ_Plane, [""])
sketch15.MapMode = "FlatFace"
sketch15.AttachmentOffset = App.Placement(Vector(0, 0, -29.999981), App.Rotation())
sketch15.addGeometry([
    Part.Circle(Vector(43, -492.7, 0), Vector(0, 0, 1), 1.5),
    Part.Circle(Vector(43, -515.1, 0), Vector(0, 0, 1), 1.5),
    Part.Circle(Vector(17, -515.1, 0), Vector(0, 0, 1), 1.5),
    Part.Circle(Vector(17, -492.7, 0), Vector(0, 0, 1), 1.5),
], False)
sketch15.addConstraint([
    Sketcher.Constraint("Equal", 0, 1),
    Sketcher.Constraint("Equal", 1, 2),
    Sketcher.Constraint("Equal", 2, 3),
    Sketcher.Constraint("Horizontal", 1, 3, 2, 3),
    Sketcher.Constraint("Horizontal", 0, 3, 3, 3),
    Sketcher.Constraint("Vertical", 0, 3, 1, 3),
    Sketcher.Constraint("Vertical", 2, 3, 3, 3),
    Sketcher.Constraint("Diameter", 0, 3.0),
    Sketcher.Constraint("DistanceX", -1, 1, 0, 3, 43.0),
    Sketcher.Constraint("DistanceX", -1, 1, 2, 3, 17.0),
    Sketcher.Constraint("DistanceY", 1, 3, 0, 3, 22.4),
    Sketcher.Constraint("DistanceY", 0, 3, -1, 1, 492.712377),
])
pocket7 = doc.addObject("PartDesign::Pocket", "Pocket006")
body.addObject(pocket7)
pocket7.Profile = sketch15
pocket7.Type = "ThroughAll"
pocket7.Reversed = True

# Sketch on XZ plane
sketch16 = doc.addObject("Sketcher::SketchObject", "Sketch015")
body.addObject(sketch16)
sketch16.AttachmentSupport = (doc.XZ_Plane, [""])
sketch16.MapMode = "FlatFace"
sketch16.AttachmentOffset = App.Placement(Vector(0, 0, -48), App.Rotation())
sketch16.addGeometry(Part.Circle(Vector(-20.3, -503.9, 0), Vector(0, 0, 1), 4.7), False)
sketch16.addConstraint([
    Sketcher.Constraint("Diameter", 0, 9.4),
    Sketcher.Constraint("DistanceX", 0, 3, -1, 1, 20.299981),
    Sketcher.Constraint("DistanceY", 0, 3, -1, 1, 503.912377),
])
pocket8 = doc.addObject("PartDesign::Pocket", "Pocket007")
body.addObject(pocket8)
pocket8.Profile = sketch16
pocket8.Type = "ThroughAll"
pocket8.Reversed = True

# Sketch on XZ plane
sketch17 = doc.addObject("Sketcher::SketchObject", "Sketch016")
body.addObject(sketch17)
sketch17.AttachmentSupport = (doc.XZ_Plane, [""])
sketch17.MapMode = "FlatFace"
sketch17.AttachmentOffset = App.Placement(Vector(0, 0, -43.5), App.Rotation())
sketch17.addGeometry(Part.Circle(Vector(-20, -504, 0), Vector(0, 0, 1), 8), False)
sketch17.addConstraint([
    Sketcher.Constraint("Diameter", 0, 16.6),
    Sketcher.Constraint("DistanceX", 0, 3, -1, 1, 20.299981),
    Sketcher.Constraint("DistanceY", 0, 3, -1, 1, 503.912377),
])
pocket9 = doc.addObject("PartDesign::Pocket", "Pocket008")
body.addObject(pocket9)
pocket9.Profile = sketch17
pocket9.Length = 0.5
pocket9.Reversed = True

# Sketch on XZ plane
sketch18 = doc.addObject("Sketcher::SketchObject", "Sketch017")
body.addObject(sketch18)
sketch18.AttachmentSupport = (doc.XZ_Plane, [""])
sketch18.MapMode = "FlatFace"
sketch18.AttachmentOffset = App.Placement(Vector(0, 0, -17), App.Rotation())
sketch18.addGeometry(Part.Circle(Vector(-20, -504, 0), Vector(0, 0, 1), 8), False)
sketch18.addConstraint([
    Sketcher.Constraint("Diameter", 0, 16.6),
    Sketcher.Constraint("DistanceX", 0, 3, -1, 1, 20.299981),
    Sketcher.Constraint("DistanceY", 0, 3, -1, 1, 503.912377),
])
pocket10 = doc.addObject("PartDesign::Pocket", "Pocket009")
body.addObject(pocket10)
pocket10.Profile = sketch18
pocket10.Length = 0.5
pocket10.Reversed = True

# Sketch on YZ plane
sketch19 = doc.addObject("Sketcher::SketchObject", "Sketch018")
body.addObject(sketch19)
sketch19.AttachmentSupport = (doc.YZ_Plane, [""])
sketch19.MapMode = "FlatFace"
sketch19.AttachmentOffset = App.Placement(Vector(0, 0, -24.999981), App.Rotation())
sketch19.addGeometry([
    Part.LineSegment(Vector(60, -494, 0), Vector(48, -494, 0)),  # 0
    Part.LineSegment(Vector(48, -494, 0), Vector(48, -523, 0)),  # 1
    Part.LineSegment(Vector(48, -523, 0), Vector(60, -523, 0)),  # 2
    Part.LineSegment(Vector(60, -523, 0), Vector(60, -494, 0)),  # 3
    Part.LineSegment(Vector(12, -494, 0), Vector(0, -494, 0)),  # 4
    Part.LineSegment(Vector(0, -494, 0), Vector(0, -523, 0)),  # 5
    Part.LineSegment(Vector(0, -523, 0), Vector(12, -523, 0)),  # 6
    Part.LineSegment(Vector(12, -523, 0), Vector(12, -494, 0)),  # 7
], False)
sketch19.addConstraint([
    Sketcher.Constraint("Coincident", 0, 2, 1, 1),
    Sketcher.Constraint("Coincident", 1, 2, 2, 1),
    Sketcher.Constraint("Coincident", 2, 2, 3, 1),
    Sketcher.Constraint("Coincident", 3, 2, 0, 1),
    Sketcher.Constraint("Coincident", 4, 2, 5, 1),
    Sketcher.Constraint("Coincident", 5, 2, 6, 1),
    Sketcher.Constraint("Coincident", 6, 2, 7, 1),
    Sketcher.Constraint("Coincident", 7, 2, 4, 1),
    Sketcher.Constraint("Horizontal", 0),
    Sketcher.Constraint("Vertical", 1),
    Sketcher.Constraint("Horizontal", 2),
    Sketcher.Constraint("Vertical", 3),
    Sketcher.Constraint("Horizontal", 4),
    Sketcher.Constraint("Vertical", 5),
    Sketcher.Constraint("Horizontal", 6),
    Sketcher.Constraint("Vertical", 7),
    Sketcher.Constraint("PointOnObject", 4, 2, -2),
    Sketcher.Constraint("Horizontal", 3, 2, 4, 2),
    Sketcher.Constraint("Horizontal", 2, 2, 5, 2),
    Sketcher.Constraint("Equal", 2, 4),
    Sketcher.Constraint("DistanceX", 0, 2, 0, 1, 12.0),
    Sketcher.Constraint("DistanceX", -1, 1, 0, 2, 48.0),
    Sketcher.Constraint("DistanceY", 1, 2, 1, 1, 28.661365),
    Sketcher.Constraint("DistanceY", 0, 2, -1, 1, 494.212377),
])
pocket11 = doc.addObject("PartDesign::Pocket", "Pocket010")
body.addObject(pocket11)
pocket11.Profile = sketch19
pocket11.Type = "ThroughAll"

# Sketch on YZ plane
sketch20 = doc.addObject("Sketcher::SketchObject", "Sketch019")
body.addObject(sketch20)
sketch20.AttachmentSupport = (doc.YZ_Plane, [""])
sketch20.MapMode = "FlatFace"
sketch20.AttachmentOffset = App.Placement(Vector(0, 0, -24.999981), App.Rotation())
sketch20.addGeometry([
    Part.LineSegment(Vector(48, -518.6, 0), Vector(12, -518.6, 0)),
    Part.LineSegment(Vector(12, -518.6, 0), Vector(12, -522.9, 0)),
    Part.LineSegment(Vector(12, -522.9, 0), Vector(48, -522.9, 0)),
    Part.LineSegment(Vector(48, -522.9, 0), Vector(48, -518.6, 0)),
], False)
sketch20.addConstraint([
    Sketcher.Constraint("Coincident", 0, 2, 1, 1),
    Sketcher.Constraint("Coincident", 1, 2, 2, 1),
    Sketcher.Constraint("Coincident", 2, 2, 3, 1),
    Sketcher.Constraint("Coincident", 3, 2, 0, 1),
    Sketcher.Constraint("Horizontal", 0),
    Sketcher.Constraint("Vertical", 1),
    Sketcher.Constraint("Horizontal", 2),
    Sketcher.Constraint("Vertical", 3),
    Sketcher.Constraint("DistanceX", 0, 2, 0, 1, 36.0),
    Sketcher.Constraint("DistanceX", -1, 1, 0, 2, 12.0),
    Sketcher.Constraint("DistanceY", 1, 2, 1, 1, 4.261365),
    Sketcher.Constraint("DistanceY", 0, 2, -1, 1, 518.612377),
])
pad9 = doc.addObject("PartDesign::Pad", "Pad008")
body.addObject(pad9)
pad9.Profile = sketch20
pad9.Length = 14.4

# Sketch on YZ plane
sketch21 = doc.addObject("Sketcher::SketchObject", "Sketch020")
body.addObject(sketch21)
sketch21.AttachmentSupport = (doc.YZ_Plane, [""])
sketch21.MapMode = "FlatFace"
sketch21.AttachmentOffset = App.Placement(Vector(0, 0, -10.599981), App.Rotation())
sketch21.addGeometry([
    Part.Circle(Vector(43, -515.1, 0), Vector(0, 0, 1), 1.8),
    Part.Circle(Vector(43, -515.1, 0), Vector(0, 0, 1), 1.5),
    Part.Circle(Vector(17, -515.1, 0), Vector(0, 0, 1), 1.8),
    Part.Circle(Vector(17, -515.1, 0), Vector(0, 0, 1), 1.5),
], False)
sketch21.addConstraint([
    Sketcher.Constraint("Coincident", 1, 3, 0, 3),
    Sketcher.Constraint("Coincident", 3, 3, 2, 3),
    Sketcher.Constraint("Equal", 0, 2),
    Sketcher.Constraint("Equal", 1, 3),
    Sketcher.Constraint("Horizontal", 1, 3, 2, 3),
    Sketcher.Constraint("Diameter", 1, 3.0),
    Sketcher.Constraint("Diameter", 0, 3.6),
    Sketcher.Constraint("DistanceX", -1, 1, 0, 3, 43.0),
    Sketcher.Constraint("DistanceX", -1, 1, 2, 3, 17.0),
    Sketcher.Constraint("DistanceY", 0, 3, -1, 1, 515.112377),
])
pocket12 = doc.addObject("PartDesign::Pocket", "Pocket011")
body.addObject(pocket12)
pocket12.Profile = sketch21
pocket12.Length = 526.430596

# Sketch on YZ plane
sketch22 = doc.addObject("Sketcher::SketchObject", "Sketch021")
body.addObject(sketch22)
sketch22.AttachmentSupport = (doc.YZ_Plane, [""])
sketch22.MapMode = "FlatFace"
sketch22.AttachmentOffset = App.Placement(Vector(0, 0, -10.599981), App.Rotation())
sketch22.addGeometry(Part.Circle(Vector(30, -517.5, 0), Vector(0, 0, 1), 1.5), False)
sketch22.addConstraint([
    Sketcher.Constraint("Diameter", 0, 3.0),
    Sketcher.Constraint("DistanceX", -1, 1, 0, 3, 30.0),
    Sketcher.Constraint("DistanceY", 0, 3, -1, 1, 517.54306),
])
pocket13 = doc.addObject("PartDesign::Pocket", "Pocket012")
body.addObject(pocket13)
pocket13.Profile = sketch22
pocket13.Length = 16
doc.recompute()

fillet = doc.addObject("PartDesign::Fillet", "Fillet")
body.addObject(fillet)
fillet.Base = (pocket13, edges_at(pocket13, [(-17.8, 48, -522.874), (-17.8, 12, -522.874)]))
fillet.Radius = 8
doc.recompute()

fillet2 = doc.addObject("PartDesign::Fillet", "Fillet001")
body.addObject(fillet2)
fillet2.Base = (fillet, edges_at(fillet, [
    (-20.3, 48, -489.212),
    (-20.3, 38, -489.212),
    (-20.3, 22, -489.212),
    (-20.3, 12, -489.212),
]))
fillet2.Radius = 2

# Sketch on YZ plane
sketch23 = doc.addObject("Sketcher::SketchObject", "Sketch022")
body.addObject(sketch23)
sketch23.AttachmentSupport = (doc.YZ_Plane, [""])
sketch23.MapMode = "FlatFace"
sketch23.AttachmentOffset = App.Placement(Vector(0, 0, -10.599981), App.Rotation())
sketch23.addGeometry([
    Part.Circle(Vector(43, -515.1, 0), Vector(0, 0, 1), 3.5),
    Part.Circle(Vector(17, -515.1, 0), Vector(0, 0, 1), 3.5),
], False)
sketch23.addConstraint([
    Sketcher.Constraint("Equal", 0, 1),
    Sketcher.Constraint("Horizontal", 0, 3, 1, 3),
    Sketcher.Constraint("Diameter", 0, 7.0),
    Sketcher.Constraint("DistanceX", -1, 1, 0, 3, 43.0),
    Sketcher.Constraint("DistanceX", -1, 1, 1, 3, 17.0),
    Sketcher.Constraint("DistanceY", 0, 3, -1, 1, 515.112377),
])
pocket14 = doc.addObject("PartDesign::Pocket", "Pocket013")
body.addObject(pocket14)
pocket14.Profile = sketch23
pocket14.Length = 5

# Sketch on XZ plane
sketch24 = doc.addObject("Sketcher::SketchObject", "Sketch023")
body.addObject(sketch24)
sketch24.AttachmentSupport = (doc.XZ_Plane, [""])
sketch24.MapMode = "FlatFace"
sketch24.AttachmentOffset = App.Placement(Vector(0, 0, -38), App.Rotation())
sketch24.addGeometry(Part.Circle(Vector(-20, -504, 0), Vector(0, 0, 1), 9), False)
sketch24.addConstraint([
    Sketcher.Constraint("Diameter", 0, 17.6),
    Sketcher.Constraint("DistanceX", 0, 3, -1, 1, 20.299981),
    Sketcher.Constraint("DistanceY", 0, 3, -1, 1, 503.912377),
])
pocket15 = doc.addObject("PartDesign::Pocket", "Pocket014")
body.addObject(pocket15)
pocket15.Profile = sketch24
pocket15.Type = "TwoLengths"
pocket15.Length = 17
pocket15.Length2 = 1
pocket15.Reversed = True

# Sketch on YZ plane
sketch25 = doc.addObject("Sketcher::SketchObject", "Sketch024")
body.addObject(sketch25)
sketch25.AttachmentSupport = (doc.YZ_Plane, [""])
sketch25.MapMode = "FlatFace"
sketch25.AttachmentOffset = App.Placement(Vector(0, 0, -30.199981), App.Rotation())
sketch25.addGeometry([
    Part.LineSegment(Vector(40, -489.2, 0), Vector(46, -489.2, 0)),  # 0
    Part.ArcOfCircle(Part.Circle(Vector(46, -491.2, 0), Vector(0, 0, 1), 2), math.radians(0), math.radians(90)),  # 1
    Part.LineSegment(Vector(48, -491.2, 0), Vector(48, -514.9, 0)),  # 2
    Part.ArcOfCircle(Part.Circle(Vector(40, -514.9, 0), Vector(0, 0, 1), 8), math.radians(-90), math.radians(0)),  # 3
    Part.LineSegment(Vector(40, -522.9, 0), Vector(20, -522.9, 0)),  # 4
    Part.ArcOfCircle(Part.Circle(Vector(20, -514.9, 0), Vector(0, 0, 1), 8), math.radians(-180), math.radians(-90)),  # 5
    Part.LineSegment(Vector(12, -514.9, 0), Vector(12, -491.2, 0)),  # 6
    Part.ArcOfCircle(Part.Circle(Vector(14, -491.2, 0), Vector(0, 0, 1), 2), math.radians(90), math.radians(180)),  # 7
    Part.LineSegment(Vector(14, -489.2, 0), Vector(20, -489.2, 0)),  # 8
    Part.ArcOfCircle(Part.Circle(Vector(20, -491.2, 0), Vector(0, 0, 1), 2), math.radians(0), math.radians(90)),  # 9
    Part.LineSegment(Vector(22, -491.2, 0), Vector(22, -512.2, 0)),  # 10
    Part.LineSegment(Vector(22, -512.2, 0), Vector(38, -512.2, 0)),  # 11
    Part.LineSegment(Vector(38, -512.2, 0), Vector(38, -491.2, 0)),  # 12
    Part.ArcOfCircle(Part.Circle(Vector(40, -491.2, 0), Vector(0, 0, 1), 2), math.radians(90), math.radians(180)),  # 13
], False)
sketch25.addConstraint([
    Sketcher.Constraint("Tangent", 0, 2, 1, 2),
    Sketcher.Constraint("Tangent", 1, 1, 2, 1),
    Sketcher.Constraint("Tangent", 2, 2, 3, 2),
    Sketcher.Constraint("Tangent", 3, 1, 4, 1),
    Sketcher.Constraint("Tangent", 4, 2, 5, 2),
    Sketcher.Constraint("Tangent", 5, 1, 6, 1),
    Sketcher.Constraint("Tangent", 6, 2, 7, 2),
    Sketcher.Constraint("Tangent", 7, 1, 8, 1),
    Sketcher.Constraint("Tangent", 8, 2, 9, 2),
    Sketcher.Constraint("Tangent", 9, 1, 10, 1),
    Sketcher.Constraint("Coincident", 10, 2, 11, 1),
    Sketcher.Constraint("Coincident", 11, 2, 12, 1),
    Sketcher.Constraint("Tangent", 12, 2, 13, 2),
    Sketcher.Constraint("Tangent", 13, 1, 0, 1),
    Sketcher.Constraint("Horizontal", 0),
    Sketcher.Constraint("Vertical", 2),
    Sketcher.Constraint("Horizontal", 4),
    Sketcher.Constraint("Vertical", 6),
    Sketcher.Constraint("Horizontal", 8),
    Sketcher.Constraint("Vertical", 10),
    Sketcher.Constraint("Horizontal", 11),
    Sketcher.Constraint("Vertical", 12),
    Sketcher.Constraint("Equal", 3, 5),
    Sketcher.Constraint("Equal", 1, 7),
    Sketcher.Constraint("Equal", 7, 9),
    Sketcher.Constraint("Equal", 9, 13),
    Sketcher.Constraint("Horizontal", 1, 3, 7, 3),
    Sketcher.Constraint("Vertical", 5, 3, 9, 3),
    Sketcher.Constraint("Vertical", 3, 3, 13, 3),
    Sketcher.Constraint("Radius", 1, 2.0),
    Sketcher.Constraint("Radius", 3, 8.0),
    Sketcher.Constraint("DistanceX", 4, 2, 4, 1, 20.0),
    Sketcher.Constraint("DistanceY", 10, 2, 10, 1, 21.0),
    Sketcher.Constraint("DistanceX", -1, 1, 1, 3, 46.0),
    Sketcher.Constraint("DistanceY", 2, 2, 2, 1, 23.661365),
    Sketcher.Constraint("DistanceY", 1, 3, -1, 1, 491.212377),
])
pad10 = doc.addObject("PartDesign::Pad", "Pad009")
body.addObject(pad10)
pad10.Profile = sketch25
pad10.Length = 0.2

doc.recompute()
